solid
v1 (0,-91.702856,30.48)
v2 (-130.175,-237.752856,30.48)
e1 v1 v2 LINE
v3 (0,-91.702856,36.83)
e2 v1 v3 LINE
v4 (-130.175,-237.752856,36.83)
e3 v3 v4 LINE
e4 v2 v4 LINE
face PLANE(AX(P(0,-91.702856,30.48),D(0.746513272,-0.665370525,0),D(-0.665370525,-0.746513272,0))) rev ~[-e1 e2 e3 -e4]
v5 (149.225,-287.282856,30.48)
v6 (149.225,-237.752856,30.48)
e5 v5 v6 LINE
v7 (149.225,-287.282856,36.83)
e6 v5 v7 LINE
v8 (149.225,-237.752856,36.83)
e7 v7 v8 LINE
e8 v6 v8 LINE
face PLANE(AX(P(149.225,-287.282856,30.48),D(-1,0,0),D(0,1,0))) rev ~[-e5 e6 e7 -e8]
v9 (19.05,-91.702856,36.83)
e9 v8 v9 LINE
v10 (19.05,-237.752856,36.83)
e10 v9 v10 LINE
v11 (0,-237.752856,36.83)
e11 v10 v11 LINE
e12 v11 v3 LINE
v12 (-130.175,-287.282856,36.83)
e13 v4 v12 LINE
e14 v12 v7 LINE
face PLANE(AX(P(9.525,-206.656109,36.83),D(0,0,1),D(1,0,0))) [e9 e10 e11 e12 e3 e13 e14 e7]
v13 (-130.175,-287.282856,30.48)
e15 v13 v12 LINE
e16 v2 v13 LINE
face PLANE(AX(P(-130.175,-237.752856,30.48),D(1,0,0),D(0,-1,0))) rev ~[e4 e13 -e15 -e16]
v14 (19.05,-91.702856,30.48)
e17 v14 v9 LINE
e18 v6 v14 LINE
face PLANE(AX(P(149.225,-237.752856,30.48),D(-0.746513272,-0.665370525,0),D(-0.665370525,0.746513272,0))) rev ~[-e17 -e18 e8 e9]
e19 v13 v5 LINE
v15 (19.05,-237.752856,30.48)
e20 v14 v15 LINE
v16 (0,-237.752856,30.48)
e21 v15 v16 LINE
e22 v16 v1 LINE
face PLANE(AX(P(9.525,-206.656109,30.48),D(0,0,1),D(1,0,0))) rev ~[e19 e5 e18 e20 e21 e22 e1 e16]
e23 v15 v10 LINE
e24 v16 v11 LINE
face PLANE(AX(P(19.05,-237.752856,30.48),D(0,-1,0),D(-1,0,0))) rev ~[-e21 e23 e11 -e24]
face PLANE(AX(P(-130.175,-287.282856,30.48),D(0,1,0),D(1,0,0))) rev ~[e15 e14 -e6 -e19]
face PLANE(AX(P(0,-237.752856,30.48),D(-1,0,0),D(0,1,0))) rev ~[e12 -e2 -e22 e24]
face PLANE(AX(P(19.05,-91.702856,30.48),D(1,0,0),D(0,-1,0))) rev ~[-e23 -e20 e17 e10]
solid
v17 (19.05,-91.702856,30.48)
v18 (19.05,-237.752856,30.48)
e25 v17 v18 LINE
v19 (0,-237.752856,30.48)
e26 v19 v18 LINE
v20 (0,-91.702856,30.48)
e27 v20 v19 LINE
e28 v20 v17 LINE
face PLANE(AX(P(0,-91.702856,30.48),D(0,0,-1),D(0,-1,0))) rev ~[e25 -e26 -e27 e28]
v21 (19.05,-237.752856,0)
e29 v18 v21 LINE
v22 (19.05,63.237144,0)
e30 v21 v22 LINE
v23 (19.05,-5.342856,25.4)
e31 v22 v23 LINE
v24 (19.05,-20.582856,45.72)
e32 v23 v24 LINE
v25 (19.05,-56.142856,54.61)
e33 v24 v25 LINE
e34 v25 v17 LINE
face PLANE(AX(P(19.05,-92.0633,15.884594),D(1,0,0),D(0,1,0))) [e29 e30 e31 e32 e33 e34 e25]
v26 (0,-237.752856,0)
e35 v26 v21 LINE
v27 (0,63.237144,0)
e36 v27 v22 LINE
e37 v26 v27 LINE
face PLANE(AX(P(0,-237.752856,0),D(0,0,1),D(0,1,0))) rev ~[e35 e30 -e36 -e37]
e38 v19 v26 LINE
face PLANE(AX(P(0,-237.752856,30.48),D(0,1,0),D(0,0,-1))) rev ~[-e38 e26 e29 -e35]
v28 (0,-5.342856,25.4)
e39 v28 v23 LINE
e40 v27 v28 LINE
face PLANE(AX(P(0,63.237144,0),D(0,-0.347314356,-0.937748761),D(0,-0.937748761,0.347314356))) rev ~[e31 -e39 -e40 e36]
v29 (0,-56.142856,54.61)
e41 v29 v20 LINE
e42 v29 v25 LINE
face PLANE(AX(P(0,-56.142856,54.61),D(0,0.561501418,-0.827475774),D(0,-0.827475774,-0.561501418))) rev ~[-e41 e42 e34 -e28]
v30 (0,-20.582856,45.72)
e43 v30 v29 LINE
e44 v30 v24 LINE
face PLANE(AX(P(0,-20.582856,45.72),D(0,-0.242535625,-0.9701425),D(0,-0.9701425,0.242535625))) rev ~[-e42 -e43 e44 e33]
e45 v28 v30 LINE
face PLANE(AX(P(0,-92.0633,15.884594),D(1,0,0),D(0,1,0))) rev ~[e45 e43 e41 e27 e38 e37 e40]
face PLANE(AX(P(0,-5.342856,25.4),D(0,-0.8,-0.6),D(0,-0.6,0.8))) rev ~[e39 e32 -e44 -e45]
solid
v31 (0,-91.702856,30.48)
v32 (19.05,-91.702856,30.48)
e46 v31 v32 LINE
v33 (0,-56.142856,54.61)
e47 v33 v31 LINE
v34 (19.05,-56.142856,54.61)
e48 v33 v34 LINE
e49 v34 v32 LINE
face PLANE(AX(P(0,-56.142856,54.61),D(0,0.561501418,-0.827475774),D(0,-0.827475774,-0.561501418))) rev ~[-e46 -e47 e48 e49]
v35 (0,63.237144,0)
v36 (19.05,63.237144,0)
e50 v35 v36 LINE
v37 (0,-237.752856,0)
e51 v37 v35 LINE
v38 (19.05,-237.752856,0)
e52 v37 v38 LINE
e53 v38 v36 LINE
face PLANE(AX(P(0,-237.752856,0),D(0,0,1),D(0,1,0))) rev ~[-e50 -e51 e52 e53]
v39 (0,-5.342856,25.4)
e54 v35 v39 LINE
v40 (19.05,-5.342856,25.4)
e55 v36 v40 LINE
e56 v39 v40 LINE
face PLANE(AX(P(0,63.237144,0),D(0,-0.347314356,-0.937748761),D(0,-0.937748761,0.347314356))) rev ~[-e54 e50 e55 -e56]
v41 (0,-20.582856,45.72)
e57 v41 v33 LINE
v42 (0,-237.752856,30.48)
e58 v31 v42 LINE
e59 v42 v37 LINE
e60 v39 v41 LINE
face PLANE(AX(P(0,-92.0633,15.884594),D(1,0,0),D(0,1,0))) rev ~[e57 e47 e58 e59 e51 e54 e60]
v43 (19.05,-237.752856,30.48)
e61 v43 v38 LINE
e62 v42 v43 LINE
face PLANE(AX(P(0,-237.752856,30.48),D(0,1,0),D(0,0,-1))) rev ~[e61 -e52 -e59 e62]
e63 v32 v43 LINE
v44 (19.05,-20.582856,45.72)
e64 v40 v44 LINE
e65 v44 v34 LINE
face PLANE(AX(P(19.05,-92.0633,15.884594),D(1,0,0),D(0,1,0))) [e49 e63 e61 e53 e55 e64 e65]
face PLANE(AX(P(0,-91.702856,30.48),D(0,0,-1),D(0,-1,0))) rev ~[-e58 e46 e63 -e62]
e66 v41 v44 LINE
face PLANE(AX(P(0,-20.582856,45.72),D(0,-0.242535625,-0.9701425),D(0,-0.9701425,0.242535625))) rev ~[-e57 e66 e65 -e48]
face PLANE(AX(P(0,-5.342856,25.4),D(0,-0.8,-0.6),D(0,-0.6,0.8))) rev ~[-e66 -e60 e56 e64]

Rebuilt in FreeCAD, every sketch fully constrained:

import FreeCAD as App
import Part
import Sketcher

V = App.Vector
Q = App.Units.Quantity


def add_polygon(sketch, points):
    """Adds a closed chain of lines whose ends are joined by coincident constraints."""
    first, n = sketch.GeometryCount, len(points)
    for a, b in zip(points, points[1:] + points[:1]):
        sketch.addGeometry(Part.LineSegment(App.Vector(*a, 0), App.Vector(*b, 0)), False)
    for i in range(n):
        sketch.addConstraint(Sketcher.Constraint("Coincident", first + i, 2, first + (i + 1) % n, 1))

doc = App.newDocument("Part")
body = doc.addObject("PartDesign::Body", "Body")

# Sketch on YZ plane
sketch1 = body.newObject("Sketcher::SketchObject", "Sketch")
sketch1.AttachmentSupport = (doc.getObject("YZ_Plane"), [""])
sketch1.MapMode = "FlatFace"
add_polygon(sketch1, [(-238, 30), (-238, 0), (63, 0), (-5, 25), (-21, 46), (-56, 55), (-92, 30)])  # lines 0-6
sketch1.addConstraint([
    Sketcher.Constraint("Vertical", 0),
    Sketcher.Constraint("Horizontal", 1),
    Sketcher.Constraint("Horizontal", 6),
    Sketcher.Constraint("PointOnObject", 0, 2, -1),
    Sketcher.Constraint("Distance", 3, Q("1 in")),
    Sketcher.Constraint("DistanceY", 0, 2, 0, 1, Q("1.2 in")),
    Sketcher.Constraint("DistanceY", -1, 1, 2, 2, Q("1 in")),
    Sketcher.Constraint("DistanceX", 4, 2, 2, 2, Q("2 in")),
    Sketcher.Constraint("DistanceX", 1, 1, 1, 2, Q("11.85 in")),
    Sketcher.Constraint("DistanceX", 6, 2, 6, 1, Q("5.75 in")),
    Sketcher.Constraint("DistanceY", -1, 1, 3, 2, Q("1.8 in")),
    Sketcher.Constraint("DistanceX", 2, 2, 1, 2, Q("2.7 in")),
    Sketcher.Constraint("DistanceY", -1, 1, 4, 2, Q("2.15 in")),
    Sketcher.Constraint("DistanceX", 0, 2, -1, 1, 237.752856),
])
pad1 = body.newObject("PartDesign::Pad", "Pad")
pad1.Profile = sketch1
pad1.Length = Q("0.75 in")
body2 = doc.addObject("PartDesign::Body", "Body001")

# Sketch on YZ plane
sketch2 = body2.newObject("Sketcher::SketchObject", "Sketch001")
sketch2.AttachmentSupport = (doc.getObject("YZ_Plane001"), [""])
sketch2.MapMode = "FlatFace"
add_polygon(sketch2, [(-238, 30), (-238, 0), (63, 0), (-5, 25), (-21, 46), (-56, 55), (-92, 30)])  # lines 0-6
sketch2.addConstraint([
    Sketcher.Constraint("Vertical", 0),
    Sketcher.Constraint("Horizontal", 1),
    Sketcher.Constraint("Horizontal", 6),
    Sketcher.Constraint("PointOnObject", 0, 2, -1),
    Sketcher.Constraint("Distance", 3, Q("1 in")),
    Sketcher.Constraint("DistanceY", 0, 2, 0, 1, Q("1.2 in")),
    Sketcher.Constraint("DistanceY", -1, 1, 2, 2, Q("1 in")),
    Sketcher.Constraint("DistanceX", 4, 2, 2, 2, Q("2 in")),
    Sketcher.Constraint("DistanceX", 1, 1, 1, 2, Q("11.85 in")),
    Sketcher.Constraint("DistanceX", 6, 2, 6, 1, Q("5.75 in")),
    Sketcher.Constraint("DistanceY", -1, 1, 3, 2, Q("1.8 in")),
    Sketcher.Constraint("DistanceX", 2, 2, 1, 2, Q("2.7 in")),
    Sketcher.Constraint("DistanceY", -1, 1, 4, 2, Q("2.15 in")),
    Sketcher.Constraint("DistanceX", 0, 2, -1, 1, 237.752856),
])
pad2 = body2.newObject("PartDesign::Pad", "Pad001")
pad2.Profile = sketch2
pad2.Length = Q("0.75 in")
body3 = doc.addObject("PartDesign::Body", "Body002")

# Sketch on XY plane
sketch3 = body3.newObject("Sketcher::SketchObject", "Sketch002")
sketch3.AttachmentSupport = (doc.getObject("XY_Plane002"), [""])
sketch3.MapMode = "FlatFace"
sketch3.AttachmentOffset = App.Placement(V(0, 0, 1.2 * 25.4), App.Rotation())
add_polygon(sketch3, [(-130, -287), (149, -287), (149, -238), (19, -92), (19, -238), (0, -238), (0, -92), (-130, -238)])  # lines 0-7
sketch3.addConstraint([
    Sketcher.Constraint("Horizontal", 0),
    Sketcher.Constraint("Vertical", 1),
    Sketcher.Constraint("Vertical", 3),
    Sketcher.Constraint("Horizontal", 4),
    Sketcher.Constraint("Vertical", 5),
    Sketcher.Constraint("Vertical", 7),
    Sketcher.Constraint("PointOnObject", 4, 2, -2),
    Sketcher.Constraint("Horizontal", 1, 2, 3, 2),
    Sketcher.Constraint("Horizontal", 2, 2, 5, 2),
    Sketcher.Constraint("Horizontal", 4, 2, 6, 2),
    Sketcher.Constraint("Equal", 2, 6),
    Sketcher.Constraint("DistanceX", 0, 1, 0, 2, Q("11 in")),
    Sketcher.Constraint("DistanceX", 4, 2, 4, 1, Q("0.75 in")),
    Sketcher.Constraint("DistanceY", 1, 1, 1, 2, Q("1.95 in")),
    Sketcher.Constraint("DistanceY", 3, 2, 3, 1, Q("5.75 in")),
    Sketcher.Constraint("DistanceY", 0, 2, -1, 1, 287.282856),
])
pad3 = body3.newObject("PartDesign::Pad", "Pad002")
pad3.Profile = sketch3
pad3.Length = Q("0.25 in")

doc.recompute()
